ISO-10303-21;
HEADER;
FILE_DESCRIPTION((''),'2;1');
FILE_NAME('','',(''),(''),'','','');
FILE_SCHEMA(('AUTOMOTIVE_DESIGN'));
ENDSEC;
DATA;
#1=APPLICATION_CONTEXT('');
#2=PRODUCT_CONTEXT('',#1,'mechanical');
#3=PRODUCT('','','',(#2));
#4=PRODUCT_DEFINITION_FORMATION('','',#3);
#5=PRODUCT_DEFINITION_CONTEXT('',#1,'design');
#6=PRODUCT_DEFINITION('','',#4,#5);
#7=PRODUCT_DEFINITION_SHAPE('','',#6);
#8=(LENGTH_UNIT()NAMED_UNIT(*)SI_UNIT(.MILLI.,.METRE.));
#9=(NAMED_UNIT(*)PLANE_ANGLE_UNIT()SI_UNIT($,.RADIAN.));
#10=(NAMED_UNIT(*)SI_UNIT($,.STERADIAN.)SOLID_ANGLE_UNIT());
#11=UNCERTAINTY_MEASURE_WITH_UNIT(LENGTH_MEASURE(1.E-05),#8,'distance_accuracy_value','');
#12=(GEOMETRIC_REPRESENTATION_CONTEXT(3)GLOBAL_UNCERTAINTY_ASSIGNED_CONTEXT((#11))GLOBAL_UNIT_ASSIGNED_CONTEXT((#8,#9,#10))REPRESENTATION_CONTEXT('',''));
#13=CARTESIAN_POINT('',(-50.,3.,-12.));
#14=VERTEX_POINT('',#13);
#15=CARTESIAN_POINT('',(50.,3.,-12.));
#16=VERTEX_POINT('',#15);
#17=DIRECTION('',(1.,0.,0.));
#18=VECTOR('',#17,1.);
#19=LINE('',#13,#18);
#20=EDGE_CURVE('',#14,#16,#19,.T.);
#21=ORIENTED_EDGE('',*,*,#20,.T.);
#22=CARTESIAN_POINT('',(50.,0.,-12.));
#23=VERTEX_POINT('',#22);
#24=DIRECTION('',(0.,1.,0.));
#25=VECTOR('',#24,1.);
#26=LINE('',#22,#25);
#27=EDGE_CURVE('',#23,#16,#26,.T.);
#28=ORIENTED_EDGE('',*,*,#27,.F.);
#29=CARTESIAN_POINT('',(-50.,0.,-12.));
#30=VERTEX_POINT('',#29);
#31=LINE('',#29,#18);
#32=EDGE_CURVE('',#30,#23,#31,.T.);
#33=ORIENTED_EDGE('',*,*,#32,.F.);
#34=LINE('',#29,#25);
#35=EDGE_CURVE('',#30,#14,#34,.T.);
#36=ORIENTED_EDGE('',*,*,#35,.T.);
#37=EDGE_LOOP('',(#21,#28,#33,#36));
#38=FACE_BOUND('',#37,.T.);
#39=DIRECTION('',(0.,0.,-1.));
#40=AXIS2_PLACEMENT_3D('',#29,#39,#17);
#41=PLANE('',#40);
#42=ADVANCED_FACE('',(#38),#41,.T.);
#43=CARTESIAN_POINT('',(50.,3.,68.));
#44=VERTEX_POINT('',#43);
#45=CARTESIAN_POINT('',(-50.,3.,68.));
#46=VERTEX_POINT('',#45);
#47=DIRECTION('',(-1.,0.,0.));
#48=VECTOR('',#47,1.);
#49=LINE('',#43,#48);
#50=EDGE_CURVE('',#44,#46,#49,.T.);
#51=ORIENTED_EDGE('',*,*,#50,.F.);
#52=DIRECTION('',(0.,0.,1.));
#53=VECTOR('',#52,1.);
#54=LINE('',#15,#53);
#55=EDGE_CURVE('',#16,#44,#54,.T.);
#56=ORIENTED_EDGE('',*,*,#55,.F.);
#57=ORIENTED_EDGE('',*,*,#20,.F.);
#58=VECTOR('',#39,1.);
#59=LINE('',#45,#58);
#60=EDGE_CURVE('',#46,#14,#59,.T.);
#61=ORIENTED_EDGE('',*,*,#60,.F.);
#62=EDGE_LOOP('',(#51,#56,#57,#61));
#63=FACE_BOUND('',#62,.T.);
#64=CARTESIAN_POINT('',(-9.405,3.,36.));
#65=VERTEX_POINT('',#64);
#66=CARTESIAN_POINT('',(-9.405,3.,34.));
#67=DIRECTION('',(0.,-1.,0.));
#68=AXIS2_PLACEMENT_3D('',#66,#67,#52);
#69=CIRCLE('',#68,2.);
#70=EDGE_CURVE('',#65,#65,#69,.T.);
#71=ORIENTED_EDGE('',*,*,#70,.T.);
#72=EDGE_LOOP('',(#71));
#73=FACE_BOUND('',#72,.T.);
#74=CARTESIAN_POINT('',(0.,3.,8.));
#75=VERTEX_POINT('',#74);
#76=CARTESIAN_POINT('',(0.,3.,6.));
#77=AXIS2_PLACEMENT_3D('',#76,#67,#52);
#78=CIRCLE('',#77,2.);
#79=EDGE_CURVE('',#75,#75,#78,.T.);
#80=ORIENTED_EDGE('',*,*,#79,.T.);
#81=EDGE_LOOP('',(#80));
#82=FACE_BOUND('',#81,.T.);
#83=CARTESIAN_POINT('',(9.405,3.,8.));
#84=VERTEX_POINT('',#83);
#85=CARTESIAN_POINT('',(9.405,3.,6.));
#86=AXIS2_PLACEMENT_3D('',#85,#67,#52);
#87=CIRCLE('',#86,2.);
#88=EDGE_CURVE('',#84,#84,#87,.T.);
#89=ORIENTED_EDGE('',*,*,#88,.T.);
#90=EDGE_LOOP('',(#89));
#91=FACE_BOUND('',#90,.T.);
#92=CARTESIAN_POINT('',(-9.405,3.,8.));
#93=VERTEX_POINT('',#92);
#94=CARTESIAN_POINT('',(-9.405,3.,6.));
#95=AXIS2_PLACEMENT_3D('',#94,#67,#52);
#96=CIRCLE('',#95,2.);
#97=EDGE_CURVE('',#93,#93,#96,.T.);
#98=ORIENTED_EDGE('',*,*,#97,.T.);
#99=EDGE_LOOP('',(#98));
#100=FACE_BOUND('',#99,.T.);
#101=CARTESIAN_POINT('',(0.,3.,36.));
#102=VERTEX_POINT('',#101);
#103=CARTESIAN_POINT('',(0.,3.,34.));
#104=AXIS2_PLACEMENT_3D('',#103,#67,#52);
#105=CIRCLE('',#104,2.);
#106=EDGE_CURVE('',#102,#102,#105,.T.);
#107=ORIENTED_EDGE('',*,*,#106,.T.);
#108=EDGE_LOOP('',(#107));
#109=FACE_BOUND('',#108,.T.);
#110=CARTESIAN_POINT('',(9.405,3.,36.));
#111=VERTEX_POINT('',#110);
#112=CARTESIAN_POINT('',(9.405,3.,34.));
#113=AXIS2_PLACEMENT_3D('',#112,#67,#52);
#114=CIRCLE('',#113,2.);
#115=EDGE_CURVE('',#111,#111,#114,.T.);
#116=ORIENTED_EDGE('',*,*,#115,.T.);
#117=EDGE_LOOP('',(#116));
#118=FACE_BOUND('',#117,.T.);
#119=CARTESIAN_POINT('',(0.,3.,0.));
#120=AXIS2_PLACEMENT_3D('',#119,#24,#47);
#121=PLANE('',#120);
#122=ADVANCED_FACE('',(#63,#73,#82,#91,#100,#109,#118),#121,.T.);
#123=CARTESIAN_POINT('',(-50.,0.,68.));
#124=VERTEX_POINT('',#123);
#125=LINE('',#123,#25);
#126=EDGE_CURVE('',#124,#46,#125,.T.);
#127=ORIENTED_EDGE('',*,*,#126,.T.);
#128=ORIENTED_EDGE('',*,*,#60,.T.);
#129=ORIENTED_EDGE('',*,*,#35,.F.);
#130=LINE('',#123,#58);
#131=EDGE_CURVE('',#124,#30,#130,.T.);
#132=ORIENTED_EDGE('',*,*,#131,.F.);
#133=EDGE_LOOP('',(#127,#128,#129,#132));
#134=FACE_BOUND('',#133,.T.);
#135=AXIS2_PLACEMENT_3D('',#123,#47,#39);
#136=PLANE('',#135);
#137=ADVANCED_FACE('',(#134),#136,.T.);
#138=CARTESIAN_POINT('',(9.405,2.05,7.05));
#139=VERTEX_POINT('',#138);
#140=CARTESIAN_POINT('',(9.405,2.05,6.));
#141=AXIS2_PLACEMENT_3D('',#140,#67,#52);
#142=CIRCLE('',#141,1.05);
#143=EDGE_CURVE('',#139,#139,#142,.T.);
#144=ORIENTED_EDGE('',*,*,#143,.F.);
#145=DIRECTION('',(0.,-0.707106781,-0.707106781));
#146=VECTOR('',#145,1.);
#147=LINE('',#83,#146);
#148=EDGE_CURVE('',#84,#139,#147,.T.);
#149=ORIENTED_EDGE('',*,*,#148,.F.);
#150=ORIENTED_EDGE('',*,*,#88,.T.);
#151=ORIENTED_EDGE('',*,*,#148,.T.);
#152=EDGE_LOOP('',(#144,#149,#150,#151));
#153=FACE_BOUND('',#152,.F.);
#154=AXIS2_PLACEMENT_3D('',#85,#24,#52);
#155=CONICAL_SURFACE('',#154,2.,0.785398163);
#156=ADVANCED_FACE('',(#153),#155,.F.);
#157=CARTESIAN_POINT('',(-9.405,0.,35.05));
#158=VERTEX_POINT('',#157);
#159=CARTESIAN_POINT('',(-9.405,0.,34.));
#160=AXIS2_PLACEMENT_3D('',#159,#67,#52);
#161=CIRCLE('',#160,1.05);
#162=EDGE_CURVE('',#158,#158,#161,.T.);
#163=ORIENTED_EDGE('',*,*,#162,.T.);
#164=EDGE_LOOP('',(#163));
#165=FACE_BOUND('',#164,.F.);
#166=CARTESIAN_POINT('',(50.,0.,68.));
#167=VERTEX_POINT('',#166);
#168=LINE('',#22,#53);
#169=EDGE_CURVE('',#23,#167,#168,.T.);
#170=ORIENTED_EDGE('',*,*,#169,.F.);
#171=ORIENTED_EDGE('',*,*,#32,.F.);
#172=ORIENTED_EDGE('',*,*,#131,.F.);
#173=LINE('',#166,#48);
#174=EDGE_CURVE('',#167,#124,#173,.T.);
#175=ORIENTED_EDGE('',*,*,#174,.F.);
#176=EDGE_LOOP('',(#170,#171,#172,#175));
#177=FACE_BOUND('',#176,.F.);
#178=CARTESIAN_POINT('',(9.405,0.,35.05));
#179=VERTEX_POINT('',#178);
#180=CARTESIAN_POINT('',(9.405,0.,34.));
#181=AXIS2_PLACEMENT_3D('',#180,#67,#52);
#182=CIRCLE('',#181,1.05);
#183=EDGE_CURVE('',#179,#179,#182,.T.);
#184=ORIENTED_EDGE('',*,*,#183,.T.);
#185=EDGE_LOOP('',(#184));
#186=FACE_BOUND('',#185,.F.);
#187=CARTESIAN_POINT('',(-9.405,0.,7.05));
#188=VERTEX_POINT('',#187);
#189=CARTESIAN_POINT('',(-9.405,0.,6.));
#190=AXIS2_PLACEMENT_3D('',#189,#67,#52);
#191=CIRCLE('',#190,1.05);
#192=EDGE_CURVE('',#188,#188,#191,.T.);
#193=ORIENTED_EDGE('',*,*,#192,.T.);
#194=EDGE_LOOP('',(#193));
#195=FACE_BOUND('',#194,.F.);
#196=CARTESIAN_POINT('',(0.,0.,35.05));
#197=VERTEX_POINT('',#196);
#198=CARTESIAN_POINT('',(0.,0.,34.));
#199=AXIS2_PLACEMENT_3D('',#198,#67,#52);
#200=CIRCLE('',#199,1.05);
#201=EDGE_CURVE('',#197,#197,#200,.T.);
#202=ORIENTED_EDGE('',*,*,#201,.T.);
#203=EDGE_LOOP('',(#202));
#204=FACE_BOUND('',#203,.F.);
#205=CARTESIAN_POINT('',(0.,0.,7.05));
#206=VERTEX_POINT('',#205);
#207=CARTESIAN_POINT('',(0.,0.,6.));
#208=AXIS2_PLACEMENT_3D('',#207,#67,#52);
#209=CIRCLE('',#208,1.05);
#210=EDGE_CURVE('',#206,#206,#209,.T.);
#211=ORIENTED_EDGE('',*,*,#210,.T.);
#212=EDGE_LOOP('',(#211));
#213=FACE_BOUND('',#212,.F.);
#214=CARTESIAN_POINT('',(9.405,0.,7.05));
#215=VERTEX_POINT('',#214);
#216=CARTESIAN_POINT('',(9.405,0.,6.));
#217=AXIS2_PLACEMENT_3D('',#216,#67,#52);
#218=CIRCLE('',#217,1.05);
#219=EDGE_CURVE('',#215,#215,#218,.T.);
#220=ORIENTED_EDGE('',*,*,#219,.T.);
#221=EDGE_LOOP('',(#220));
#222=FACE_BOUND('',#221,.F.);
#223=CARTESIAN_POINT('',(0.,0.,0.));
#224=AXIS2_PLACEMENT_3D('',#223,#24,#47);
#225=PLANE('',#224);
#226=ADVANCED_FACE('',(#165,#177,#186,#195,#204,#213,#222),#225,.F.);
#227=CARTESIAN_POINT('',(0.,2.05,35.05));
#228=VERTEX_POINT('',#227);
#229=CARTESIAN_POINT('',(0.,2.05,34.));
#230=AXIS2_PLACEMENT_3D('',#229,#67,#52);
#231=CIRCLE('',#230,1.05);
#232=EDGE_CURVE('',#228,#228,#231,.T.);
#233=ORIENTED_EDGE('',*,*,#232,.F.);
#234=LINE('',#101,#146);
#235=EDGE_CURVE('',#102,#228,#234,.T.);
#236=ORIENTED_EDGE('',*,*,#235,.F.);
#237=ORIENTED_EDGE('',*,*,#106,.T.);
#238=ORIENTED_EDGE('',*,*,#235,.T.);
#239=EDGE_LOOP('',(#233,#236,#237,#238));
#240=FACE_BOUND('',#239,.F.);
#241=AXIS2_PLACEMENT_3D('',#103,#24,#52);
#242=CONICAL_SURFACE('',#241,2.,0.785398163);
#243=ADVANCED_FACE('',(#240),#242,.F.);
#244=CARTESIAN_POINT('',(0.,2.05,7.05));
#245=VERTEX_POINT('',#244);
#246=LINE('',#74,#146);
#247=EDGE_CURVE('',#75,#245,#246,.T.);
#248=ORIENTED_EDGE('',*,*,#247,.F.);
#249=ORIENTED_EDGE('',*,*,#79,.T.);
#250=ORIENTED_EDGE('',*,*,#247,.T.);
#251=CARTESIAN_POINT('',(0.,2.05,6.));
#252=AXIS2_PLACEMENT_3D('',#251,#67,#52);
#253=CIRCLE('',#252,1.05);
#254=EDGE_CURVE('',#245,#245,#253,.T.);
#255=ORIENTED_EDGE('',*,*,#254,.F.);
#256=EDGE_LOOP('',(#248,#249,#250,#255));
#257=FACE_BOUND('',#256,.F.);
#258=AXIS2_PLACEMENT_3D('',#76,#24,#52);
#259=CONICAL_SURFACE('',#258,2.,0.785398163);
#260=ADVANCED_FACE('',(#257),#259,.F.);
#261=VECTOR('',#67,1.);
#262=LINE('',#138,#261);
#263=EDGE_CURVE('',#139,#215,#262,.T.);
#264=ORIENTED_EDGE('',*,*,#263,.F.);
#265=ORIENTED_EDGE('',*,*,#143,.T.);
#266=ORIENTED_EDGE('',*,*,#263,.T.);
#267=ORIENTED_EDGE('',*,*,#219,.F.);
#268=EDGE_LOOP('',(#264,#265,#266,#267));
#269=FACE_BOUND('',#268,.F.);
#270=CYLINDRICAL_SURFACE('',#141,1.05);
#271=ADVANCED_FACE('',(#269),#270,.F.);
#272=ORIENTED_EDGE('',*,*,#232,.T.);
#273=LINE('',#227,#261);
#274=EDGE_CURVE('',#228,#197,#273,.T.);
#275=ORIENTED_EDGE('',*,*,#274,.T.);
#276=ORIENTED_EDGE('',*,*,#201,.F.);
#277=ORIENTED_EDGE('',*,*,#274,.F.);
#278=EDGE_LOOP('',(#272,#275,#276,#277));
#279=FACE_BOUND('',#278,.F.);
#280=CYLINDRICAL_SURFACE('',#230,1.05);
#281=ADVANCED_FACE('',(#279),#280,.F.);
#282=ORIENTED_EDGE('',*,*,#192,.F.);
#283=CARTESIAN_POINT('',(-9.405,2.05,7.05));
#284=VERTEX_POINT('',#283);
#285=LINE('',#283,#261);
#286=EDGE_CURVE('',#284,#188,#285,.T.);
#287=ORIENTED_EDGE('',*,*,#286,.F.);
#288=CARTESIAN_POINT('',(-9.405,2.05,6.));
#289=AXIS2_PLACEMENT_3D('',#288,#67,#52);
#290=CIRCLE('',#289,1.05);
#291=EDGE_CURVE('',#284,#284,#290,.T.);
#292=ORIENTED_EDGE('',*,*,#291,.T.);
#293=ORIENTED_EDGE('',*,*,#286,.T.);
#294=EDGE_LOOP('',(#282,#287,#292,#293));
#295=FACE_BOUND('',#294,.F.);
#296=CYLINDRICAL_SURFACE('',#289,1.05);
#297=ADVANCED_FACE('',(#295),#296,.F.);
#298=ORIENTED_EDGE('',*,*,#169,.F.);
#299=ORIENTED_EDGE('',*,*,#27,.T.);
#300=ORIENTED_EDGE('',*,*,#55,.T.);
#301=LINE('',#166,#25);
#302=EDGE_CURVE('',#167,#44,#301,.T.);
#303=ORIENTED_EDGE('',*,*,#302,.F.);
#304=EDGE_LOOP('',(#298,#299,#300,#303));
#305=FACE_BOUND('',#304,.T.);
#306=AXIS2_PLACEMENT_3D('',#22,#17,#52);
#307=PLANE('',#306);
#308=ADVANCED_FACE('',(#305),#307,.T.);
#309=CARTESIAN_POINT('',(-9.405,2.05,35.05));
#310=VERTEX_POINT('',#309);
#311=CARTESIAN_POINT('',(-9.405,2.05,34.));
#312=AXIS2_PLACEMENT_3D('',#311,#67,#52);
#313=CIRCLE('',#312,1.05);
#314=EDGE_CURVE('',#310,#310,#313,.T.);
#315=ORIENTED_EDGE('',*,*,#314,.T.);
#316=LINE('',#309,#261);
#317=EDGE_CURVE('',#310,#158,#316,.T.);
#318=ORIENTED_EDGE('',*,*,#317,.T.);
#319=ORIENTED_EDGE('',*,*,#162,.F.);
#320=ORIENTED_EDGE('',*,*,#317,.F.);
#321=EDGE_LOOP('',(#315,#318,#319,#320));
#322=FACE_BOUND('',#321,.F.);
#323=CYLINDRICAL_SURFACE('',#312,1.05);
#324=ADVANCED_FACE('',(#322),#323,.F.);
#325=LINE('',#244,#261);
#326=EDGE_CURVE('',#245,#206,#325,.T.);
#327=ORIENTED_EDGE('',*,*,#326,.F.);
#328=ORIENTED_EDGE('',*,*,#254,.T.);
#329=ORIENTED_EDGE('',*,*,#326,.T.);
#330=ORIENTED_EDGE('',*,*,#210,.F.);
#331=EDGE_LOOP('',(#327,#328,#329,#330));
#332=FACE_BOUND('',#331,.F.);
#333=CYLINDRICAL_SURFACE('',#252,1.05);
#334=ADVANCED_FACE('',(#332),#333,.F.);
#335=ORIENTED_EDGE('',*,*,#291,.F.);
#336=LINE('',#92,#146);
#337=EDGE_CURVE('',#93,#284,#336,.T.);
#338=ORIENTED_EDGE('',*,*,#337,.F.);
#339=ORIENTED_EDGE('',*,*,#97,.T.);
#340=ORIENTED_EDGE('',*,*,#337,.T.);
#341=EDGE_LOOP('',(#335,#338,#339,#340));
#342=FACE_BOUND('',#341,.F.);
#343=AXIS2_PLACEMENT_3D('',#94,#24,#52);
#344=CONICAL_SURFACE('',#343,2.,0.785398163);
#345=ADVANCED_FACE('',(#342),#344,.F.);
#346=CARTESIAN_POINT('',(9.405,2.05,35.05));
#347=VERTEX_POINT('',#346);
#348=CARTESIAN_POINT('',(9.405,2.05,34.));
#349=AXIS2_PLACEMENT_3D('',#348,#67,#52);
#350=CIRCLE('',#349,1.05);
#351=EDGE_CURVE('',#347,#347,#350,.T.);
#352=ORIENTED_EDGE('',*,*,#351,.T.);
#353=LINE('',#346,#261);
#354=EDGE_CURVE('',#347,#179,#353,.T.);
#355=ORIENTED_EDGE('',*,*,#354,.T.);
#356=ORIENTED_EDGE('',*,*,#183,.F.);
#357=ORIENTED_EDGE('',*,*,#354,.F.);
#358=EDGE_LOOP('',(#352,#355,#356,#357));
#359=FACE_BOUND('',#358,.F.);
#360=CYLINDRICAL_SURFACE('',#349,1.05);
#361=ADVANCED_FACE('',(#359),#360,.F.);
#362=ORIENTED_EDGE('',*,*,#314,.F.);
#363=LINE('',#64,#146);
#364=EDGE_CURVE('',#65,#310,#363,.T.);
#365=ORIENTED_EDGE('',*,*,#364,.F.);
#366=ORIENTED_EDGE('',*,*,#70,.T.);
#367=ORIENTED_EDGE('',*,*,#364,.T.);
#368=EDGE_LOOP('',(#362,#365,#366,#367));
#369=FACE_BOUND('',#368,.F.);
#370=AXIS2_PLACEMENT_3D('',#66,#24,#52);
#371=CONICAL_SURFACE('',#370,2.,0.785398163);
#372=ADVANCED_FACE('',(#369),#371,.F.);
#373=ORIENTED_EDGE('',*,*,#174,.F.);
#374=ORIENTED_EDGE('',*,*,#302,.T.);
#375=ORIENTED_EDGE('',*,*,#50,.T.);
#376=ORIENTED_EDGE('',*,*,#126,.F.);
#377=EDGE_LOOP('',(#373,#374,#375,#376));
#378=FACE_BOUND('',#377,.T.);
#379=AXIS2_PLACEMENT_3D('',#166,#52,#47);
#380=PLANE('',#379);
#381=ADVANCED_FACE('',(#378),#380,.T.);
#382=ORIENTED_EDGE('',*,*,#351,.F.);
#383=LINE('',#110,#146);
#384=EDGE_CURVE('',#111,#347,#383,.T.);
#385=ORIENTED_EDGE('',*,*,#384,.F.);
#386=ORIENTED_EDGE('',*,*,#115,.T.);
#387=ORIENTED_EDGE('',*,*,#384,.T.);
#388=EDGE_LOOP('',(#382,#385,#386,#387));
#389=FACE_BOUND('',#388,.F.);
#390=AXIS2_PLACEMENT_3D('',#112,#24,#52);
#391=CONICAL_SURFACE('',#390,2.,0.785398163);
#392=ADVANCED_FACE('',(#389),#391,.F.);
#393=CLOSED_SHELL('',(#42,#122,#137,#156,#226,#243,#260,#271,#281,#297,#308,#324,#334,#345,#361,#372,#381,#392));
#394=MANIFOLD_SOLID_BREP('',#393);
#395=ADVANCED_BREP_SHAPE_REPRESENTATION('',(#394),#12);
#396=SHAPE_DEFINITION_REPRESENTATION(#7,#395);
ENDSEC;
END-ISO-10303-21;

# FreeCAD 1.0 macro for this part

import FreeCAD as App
import Part
import Sketcher
Q = App.Units.Quantity


def add_polygon(sketch, points):
    """Adds a closed chain of lines whose ends are joined by coincident constraints."""
    first, n = sketch.GeometryCount, len(points)
    for a, b in zip(points, points[1:] + points[:1]):
        sketch.addGeometry(Part.LineSegment(App.Vector(*a, 0), App.Vector(*b, 0)), False)
    for i in range(n):
        sketch.addConstraint(Sketcher.Constraint("Coincident", first + i, 2, first + (i + 1) % n, 1))

doc = App.newDocument("Part")
body = doc.addObject("PartDesign::Body", "Body")

# Sketch on XZ plane
sketch1 = body.newObject("Sketcher::SketchObject", "Sketch")
sketch1.AttachmentSupport = (doc.getObject("XZ_Plane"), [""])
sketch1.MapMode = "FlatFace"
add_polygon(sketch1, [(50, -12), (-50, -12), (-50, 68), (50, 68)])  # lines 0-3
sketch1.addConstraint([
    Sketcher.Constraint("Horizontal", 0),
    Sketcher.Constraint("Vertical", 1),
    Sketcher.Constraint("Horizontal", 2),
    Sketcher.Constraint("Vertical", 3),
    Sketcher.Constraint("DistanceX", 0, 2, 0, 1, Q("100 mm")),
    Sketcher.Constraint("DistanceY", 1, 1, 1, 2, Q("80 mm")),
    Sketcher.Constraint("DistanceX", 0, 2, -1, 1, Q("50 mm")),
    Sketcher.Constraint("DistanceY", 0, 2, -1, 1, Q("12 mm")),
])
pad1 = body.newObject("PartDesign::Pad", "Pad")
pad1.Profile = sketch1
pad1.Length = 3
pad1.Reversed = True

# Sketch on XZ plane
sketch2 = body.newObject("Sketcher::SketchObject", "Sketch001")
sketch2.AttachmentSupport = (doc.getObject("XZ_Plane"), [""])
sketch2.MapMode = "FlatFace"
sketch2.AttachmentOffset = App.Placement(App.Vector(0, 0, -3), App.Rotation())
sketch2.addGeometry([
    Part.Circle(App.Vector(-9.405, 6, 0), App.Vector(0, 0, 1), 1.05),  # 0
    Part.Circle(App.Vector(0, 6, 0), App.Vector(0, 0, 1), 1.05),  # 1
    Part.Circle(App.Vector(9.405, 6, 0), App.Vector(0, 0, 1), 1.05),  # 2
    Part.Circle(App.Vector(9.405, 34, 0), App.Vector(0, 0, 1), 1.05),  # 3
    Part.Circle(App.Vector(0, 34, 0), App.Vector(0, 0, 1), 1.05),  # 4
    Part.Circle(App.Vector(-9.405, 34, 0), App.Vector(0, 0, 1), 1.05),  # 5
], False)
sketch2.addConstraint([
    Sketcher.Constraint("Equal", 0, 1),
    Sketcher.Constraint("Equal", 1, 2),
    Sketcher.Constraint("Equal", 2, 3),
    Sketcher.Constraint("Equal", 3, 4),
    Sketcher.Constraint("Equal", 4, 5),
    Sketcher.Constraint("Symmetric", 0, 3, 2, 3, -2),
    Sketcher.Constraint("Symmetric", 3, 3, 5, 3, -2),
    Sketcher.Constraint("PointOnObject", 1, 3, -2),
    Sketcher.Constraint("PointOnObject", 4, 3, -2),
    Sketcher.Constraint("Horizontal", 0, 3, 1, 3),
    Sketcher.Constraint("Horizontal", 3, 3, 4, 3),
    Sketcher.Constraint("Vertical", 2, 3, 3, 3),
    Sketcher.Constraint("Diameter", 0, Q("2.1 mm")),
    Sketcher.Constraint("DistanceY", -1, 1, 0, 3, Q("6 mm")),
    Sketcher.Constraint("DistanceY", -1, 1, 3, 3, Q("34 mm")),
    Sketcher.Constraint("DistanceX", 0, 3, 2, 3, Q("18.81 mm")),
])
doc.recompute()
hole = body.newObject("PartDesign::Hole", "Hole")
hole.Profile = sketch2
hole.ThreadType = "None"
hole.Diameter = 2.1
hole.DepthType = "Dimension"
hole.Depth = 3
hole.DrillPoint = "Flat"
hole.HoleCutType = "Countersink"
hole.HoleCutDiameter = 4
hole.HoleCutCountersinkAngle = 90
hole.Reversed = True

doc.recompute()
